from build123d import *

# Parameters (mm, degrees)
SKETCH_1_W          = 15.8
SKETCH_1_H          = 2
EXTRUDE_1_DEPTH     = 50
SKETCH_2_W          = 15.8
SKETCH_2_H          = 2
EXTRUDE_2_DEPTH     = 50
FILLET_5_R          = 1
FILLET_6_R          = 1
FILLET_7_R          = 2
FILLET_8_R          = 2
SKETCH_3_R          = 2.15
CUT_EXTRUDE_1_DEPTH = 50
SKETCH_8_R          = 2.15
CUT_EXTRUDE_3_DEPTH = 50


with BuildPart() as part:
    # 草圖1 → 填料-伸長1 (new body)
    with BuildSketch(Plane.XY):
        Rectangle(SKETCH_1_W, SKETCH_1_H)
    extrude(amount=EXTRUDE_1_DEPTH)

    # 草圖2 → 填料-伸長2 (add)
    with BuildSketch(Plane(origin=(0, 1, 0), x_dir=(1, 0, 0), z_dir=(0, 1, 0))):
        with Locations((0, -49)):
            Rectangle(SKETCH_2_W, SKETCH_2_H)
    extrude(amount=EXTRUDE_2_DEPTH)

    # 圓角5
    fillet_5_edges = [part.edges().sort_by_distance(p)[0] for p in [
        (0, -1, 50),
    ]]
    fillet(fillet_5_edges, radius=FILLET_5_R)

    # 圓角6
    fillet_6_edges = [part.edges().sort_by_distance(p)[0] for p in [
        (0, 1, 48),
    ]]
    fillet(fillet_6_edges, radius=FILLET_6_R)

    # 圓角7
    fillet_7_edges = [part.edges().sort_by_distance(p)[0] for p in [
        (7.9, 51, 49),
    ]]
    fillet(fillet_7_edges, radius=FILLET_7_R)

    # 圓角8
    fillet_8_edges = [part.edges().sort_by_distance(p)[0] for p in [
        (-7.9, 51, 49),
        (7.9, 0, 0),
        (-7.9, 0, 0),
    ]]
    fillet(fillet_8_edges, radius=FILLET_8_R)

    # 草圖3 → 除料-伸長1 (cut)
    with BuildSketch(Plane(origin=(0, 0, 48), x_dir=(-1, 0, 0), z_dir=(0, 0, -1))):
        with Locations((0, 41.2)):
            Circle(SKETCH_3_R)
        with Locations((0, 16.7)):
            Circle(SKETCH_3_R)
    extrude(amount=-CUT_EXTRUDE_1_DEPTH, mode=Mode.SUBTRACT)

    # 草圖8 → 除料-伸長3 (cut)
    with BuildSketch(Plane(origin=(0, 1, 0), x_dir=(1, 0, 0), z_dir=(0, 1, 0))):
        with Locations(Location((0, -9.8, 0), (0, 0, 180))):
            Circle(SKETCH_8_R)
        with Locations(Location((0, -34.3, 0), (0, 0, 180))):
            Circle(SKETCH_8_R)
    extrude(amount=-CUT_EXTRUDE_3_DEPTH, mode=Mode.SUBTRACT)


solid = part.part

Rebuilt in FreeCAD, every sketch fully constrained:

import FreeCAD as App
import Part
import Sketcher

V = App.Vector
Q = App.Units.Quantity


def edges_at(feature, points):
    """Names of the edges that pass closest to the given points."""
    edges = feature.Shape.Edges
    near = lambda p: min(range(len(edges)), key=lambda i: edges[i].distToShape(Part.Vertex(*p))[0])
    return sorted({f"Edge{near(p) + 1}" for p in points})


def add_polygon(sketch, points):
    """Adds a closed chain of lines whose ends are joined by coincident constraints."""
    first, n = sketch.GeometryCount, len(points)
    for a, b in zip(points, points[1:] + points[:1]):
        sketch.addGeometry(Part.LineSegment(App.Vector(*a, 0), App.Vector(*b, 0)), False)
    for i in range(n):
        sketch.addConstraint(Sketcher.Constraint("Coincident", first + i, 2, first + (i + 1) % n, 1))

doc = App.newDocument("Part")
body = doc.addObject("PartDesign::Body", "Body")

# Sketch on XY plane
sketch1 = body.newObject("Sketcher::SketchObject", "Sketch")
sketch1.AttachmentSupport = (doc.getObject("XY_Plane"), [""])
sketch1.MapMode = "FlatFace"
add_polygon(sketch1, [(-7.9, 1), (-7.9, -1), (7.9, -1), (7.9, 1)])  # lines 0-3
sketch1.addConstraint(Sketcher.Constraint("Vertical", 0))
sketch1.addConstraint(Sketcher.Constraint("Horizontal", 1))
sketch1.addConstraint(Sketcher.Constraint("Vertical", 2))
sketch1.addConstraint(Sketcher.Constraint("Horizontal", 3))
sketch1.addConstraint(Sketcher.Constraint("Symmetric", 0, 2, 2, 2, -1, 1))
sketch1.addConstraint(Sketcher.Constraint("DistanceY", 0, 2, 0, 1, Q("2 mm")))
sketch1.addConstraint(Sketcher.Constraint("DistanceX", 1, 1, 1, 2, Q("15.8 mm")))
pad1 = body.newObject("PartDesign::Pad", "Pad")
pad1.Profile = sketch1
pad1.Length = 50

# Sketch on XZ plane
sketch2 = body.newObject("Sketcher::SketchObject", "Sketch001")
sketch2.AttachmentSupport = (doc.getObject("XZ_Plane"), [""])
sketch2.MapMode = "FlatFace"
sketch2.AttachmentOffset = App.Placement(V(0, 0, -1), App.Rotation())
add_polygon(sketch2, [(-7.9, 48), (-7.9, 50), (7.9, 50), (7.9, 48)])  # lines 0-3
sketch2.addConstraint(Sketcher.Constraint("Vertical", 0))
sketch2.addConstraint(Sketcher.Constraint("Horizontal", 1))
sketch2.addConstraint(Sketcher.Constraint("Vertical", 2))
sketch2.addConstraint(Sketcher.Constraint("Horizontal", 3))
sketch2.addConstraint(Sketcher.Constraint("DistanceY", 0, 1, 0, 2, Q("2 mm")))
sketch2.addConstraint(Sketcher.Constraint("DistanceX", 1, 1, 1, 2, Q("15.8 mm")))
sketch2.addConstraint(Sketcher.Constraint("DistanceY", -1, 1, 0, 2, Q("50 mm")))
sketch2.addConstraint(Sketcher.Constraint("DistanceX", 0, 2, -1, 1, Q("7.9 mm")))
pad2 = body.newObject("PartDesign::Pad", "Pad001")
pad2.Profile = sketch2
pad2.Length = 50
pad2.Reversed = True
doc.recompute()

fillet = body.newObject("PartDesign::Fillet", "Fillet")
fillet.Base = (pad2, edges_at(pad2, [(0, -1, 50)]))
fillet.Radius = 1
doc.recompute()

fillet2 = body.newObject("PartDesign::Fillet", "Fillet001")
fillet2.Base = (fillet, edges_at(fillet, [(0, 1, 48)]))
fillet2.Radius = 1
doc.recompute()

fillet3 = body.newObject("PartDesign::Fillet", "Fillet002")
fillet3.Base = (fillet2, edges_at(fillet2, [(7.9, 51, 49)]))
fillet3.Radius = 2
doc.recompute()

fillet4 = body.newObject("PartDesign::Fillet", "Fillet003")
fillet4.Base = (fillet3, edges_at(fillet3, [(-7.9, 51, 49), (7.9, 0, 0), (-7.9, 0, 0)]))
fillet4.Radius = 2

# Sketch on XY plane
sketch3 = body.newObject("Sketcher::SketchObject", "Sketch002")
sketch3.AttachmentSupport = (doc.getObject("XY_Plane"), [""])
sketch3.MapMode = "FlatFace"
sketch3.AttachmentOffset = App.Placement(V(0, 0, 48), App.Rotation())
sketch3.addGeometry(Part.Circle(V(0, 41.2, 0), V(0, 0, 1), 2.1), False)
sketch3.addGeometry(Part.Circle(V(0, 16.7, 0), V(0, 0, 1), 2.1), False)
sketch3.addConstraint(Sketcher.Constraint("Equal", 0, 1))
sketch3.addConstraint(Sketcher.Constraint("PointOnObject", 0, 3, -2))
sketch3.addConstraint(Sketcher.Constraint("PointOnObject", 1, 3, -2))
sketch3.addConstraint(Sketcher.Constraint("Diameter", 0, Q("4.3 mm")))
sketch3.addConstraint(Sketcher.Constraint("DistanceY", -1, 1, 0, 3, Q("41.2 mm")))
sketch3.addConstraint(Sketcher.Constraint("DistanceY", -1, 1, 1, 3, Q("16.7 mm")))
pocket1 = body.newObject("PartDesign::Pocket", "Pocket")
pocket1.Profile = sketch3
pocket1.Length = 50
pocket1.Reversed = True

# Sketch on XZ plane
sketch4 = body.newObject("Sketcher::SketchObject", "Sketch003")
sketch4.AttachmentSupport = (doc.getObject("XZ_Plane"), [""])
sketch4.MapMode = "FlatFace"
sketch4.AttachmentOffset = App.Placement(V(0, 0, -1), App.Rotation())
sketch4.addGeometry(Part.Circle(V(0, 9.8, 0), V(0, 0, 1), 2.1), False)
sketch4.addGeometry(Part.Circle(V(0, 34.3, 0), V(0, 0, 1), 2.1), False)
sketch4.addConstraint(Sketcher.Constraint("Equal", 0, 1))
sketch4.addConstraint(Sketcher.Constraint("PointOnObject", 0, 3, -2))
sketch4.addConstraint(Sketcher.Constraint("PointOnObject", 1, 3, -2))
sketch4.addConstraint(Sketcher.Constraint("Diameter", 0, Q("4.3 mm")))
sketch4.addConstraint(Sketcher.Constraint("DistanceY", -1, 1, 0, 3, Q("9.8 mm")))
sketch4.addConstraint(Sketcher.Constraint("DistanceY", -1, 1, 1, 3, Q("34.3 mm")))
pocket2 = body.newObject("PartDesign::Pocket", "Pocket001")
pocket2.Profile = sketch4
pocket2.Length = 50
pocket2.Reversed = True

doc.recompute()
